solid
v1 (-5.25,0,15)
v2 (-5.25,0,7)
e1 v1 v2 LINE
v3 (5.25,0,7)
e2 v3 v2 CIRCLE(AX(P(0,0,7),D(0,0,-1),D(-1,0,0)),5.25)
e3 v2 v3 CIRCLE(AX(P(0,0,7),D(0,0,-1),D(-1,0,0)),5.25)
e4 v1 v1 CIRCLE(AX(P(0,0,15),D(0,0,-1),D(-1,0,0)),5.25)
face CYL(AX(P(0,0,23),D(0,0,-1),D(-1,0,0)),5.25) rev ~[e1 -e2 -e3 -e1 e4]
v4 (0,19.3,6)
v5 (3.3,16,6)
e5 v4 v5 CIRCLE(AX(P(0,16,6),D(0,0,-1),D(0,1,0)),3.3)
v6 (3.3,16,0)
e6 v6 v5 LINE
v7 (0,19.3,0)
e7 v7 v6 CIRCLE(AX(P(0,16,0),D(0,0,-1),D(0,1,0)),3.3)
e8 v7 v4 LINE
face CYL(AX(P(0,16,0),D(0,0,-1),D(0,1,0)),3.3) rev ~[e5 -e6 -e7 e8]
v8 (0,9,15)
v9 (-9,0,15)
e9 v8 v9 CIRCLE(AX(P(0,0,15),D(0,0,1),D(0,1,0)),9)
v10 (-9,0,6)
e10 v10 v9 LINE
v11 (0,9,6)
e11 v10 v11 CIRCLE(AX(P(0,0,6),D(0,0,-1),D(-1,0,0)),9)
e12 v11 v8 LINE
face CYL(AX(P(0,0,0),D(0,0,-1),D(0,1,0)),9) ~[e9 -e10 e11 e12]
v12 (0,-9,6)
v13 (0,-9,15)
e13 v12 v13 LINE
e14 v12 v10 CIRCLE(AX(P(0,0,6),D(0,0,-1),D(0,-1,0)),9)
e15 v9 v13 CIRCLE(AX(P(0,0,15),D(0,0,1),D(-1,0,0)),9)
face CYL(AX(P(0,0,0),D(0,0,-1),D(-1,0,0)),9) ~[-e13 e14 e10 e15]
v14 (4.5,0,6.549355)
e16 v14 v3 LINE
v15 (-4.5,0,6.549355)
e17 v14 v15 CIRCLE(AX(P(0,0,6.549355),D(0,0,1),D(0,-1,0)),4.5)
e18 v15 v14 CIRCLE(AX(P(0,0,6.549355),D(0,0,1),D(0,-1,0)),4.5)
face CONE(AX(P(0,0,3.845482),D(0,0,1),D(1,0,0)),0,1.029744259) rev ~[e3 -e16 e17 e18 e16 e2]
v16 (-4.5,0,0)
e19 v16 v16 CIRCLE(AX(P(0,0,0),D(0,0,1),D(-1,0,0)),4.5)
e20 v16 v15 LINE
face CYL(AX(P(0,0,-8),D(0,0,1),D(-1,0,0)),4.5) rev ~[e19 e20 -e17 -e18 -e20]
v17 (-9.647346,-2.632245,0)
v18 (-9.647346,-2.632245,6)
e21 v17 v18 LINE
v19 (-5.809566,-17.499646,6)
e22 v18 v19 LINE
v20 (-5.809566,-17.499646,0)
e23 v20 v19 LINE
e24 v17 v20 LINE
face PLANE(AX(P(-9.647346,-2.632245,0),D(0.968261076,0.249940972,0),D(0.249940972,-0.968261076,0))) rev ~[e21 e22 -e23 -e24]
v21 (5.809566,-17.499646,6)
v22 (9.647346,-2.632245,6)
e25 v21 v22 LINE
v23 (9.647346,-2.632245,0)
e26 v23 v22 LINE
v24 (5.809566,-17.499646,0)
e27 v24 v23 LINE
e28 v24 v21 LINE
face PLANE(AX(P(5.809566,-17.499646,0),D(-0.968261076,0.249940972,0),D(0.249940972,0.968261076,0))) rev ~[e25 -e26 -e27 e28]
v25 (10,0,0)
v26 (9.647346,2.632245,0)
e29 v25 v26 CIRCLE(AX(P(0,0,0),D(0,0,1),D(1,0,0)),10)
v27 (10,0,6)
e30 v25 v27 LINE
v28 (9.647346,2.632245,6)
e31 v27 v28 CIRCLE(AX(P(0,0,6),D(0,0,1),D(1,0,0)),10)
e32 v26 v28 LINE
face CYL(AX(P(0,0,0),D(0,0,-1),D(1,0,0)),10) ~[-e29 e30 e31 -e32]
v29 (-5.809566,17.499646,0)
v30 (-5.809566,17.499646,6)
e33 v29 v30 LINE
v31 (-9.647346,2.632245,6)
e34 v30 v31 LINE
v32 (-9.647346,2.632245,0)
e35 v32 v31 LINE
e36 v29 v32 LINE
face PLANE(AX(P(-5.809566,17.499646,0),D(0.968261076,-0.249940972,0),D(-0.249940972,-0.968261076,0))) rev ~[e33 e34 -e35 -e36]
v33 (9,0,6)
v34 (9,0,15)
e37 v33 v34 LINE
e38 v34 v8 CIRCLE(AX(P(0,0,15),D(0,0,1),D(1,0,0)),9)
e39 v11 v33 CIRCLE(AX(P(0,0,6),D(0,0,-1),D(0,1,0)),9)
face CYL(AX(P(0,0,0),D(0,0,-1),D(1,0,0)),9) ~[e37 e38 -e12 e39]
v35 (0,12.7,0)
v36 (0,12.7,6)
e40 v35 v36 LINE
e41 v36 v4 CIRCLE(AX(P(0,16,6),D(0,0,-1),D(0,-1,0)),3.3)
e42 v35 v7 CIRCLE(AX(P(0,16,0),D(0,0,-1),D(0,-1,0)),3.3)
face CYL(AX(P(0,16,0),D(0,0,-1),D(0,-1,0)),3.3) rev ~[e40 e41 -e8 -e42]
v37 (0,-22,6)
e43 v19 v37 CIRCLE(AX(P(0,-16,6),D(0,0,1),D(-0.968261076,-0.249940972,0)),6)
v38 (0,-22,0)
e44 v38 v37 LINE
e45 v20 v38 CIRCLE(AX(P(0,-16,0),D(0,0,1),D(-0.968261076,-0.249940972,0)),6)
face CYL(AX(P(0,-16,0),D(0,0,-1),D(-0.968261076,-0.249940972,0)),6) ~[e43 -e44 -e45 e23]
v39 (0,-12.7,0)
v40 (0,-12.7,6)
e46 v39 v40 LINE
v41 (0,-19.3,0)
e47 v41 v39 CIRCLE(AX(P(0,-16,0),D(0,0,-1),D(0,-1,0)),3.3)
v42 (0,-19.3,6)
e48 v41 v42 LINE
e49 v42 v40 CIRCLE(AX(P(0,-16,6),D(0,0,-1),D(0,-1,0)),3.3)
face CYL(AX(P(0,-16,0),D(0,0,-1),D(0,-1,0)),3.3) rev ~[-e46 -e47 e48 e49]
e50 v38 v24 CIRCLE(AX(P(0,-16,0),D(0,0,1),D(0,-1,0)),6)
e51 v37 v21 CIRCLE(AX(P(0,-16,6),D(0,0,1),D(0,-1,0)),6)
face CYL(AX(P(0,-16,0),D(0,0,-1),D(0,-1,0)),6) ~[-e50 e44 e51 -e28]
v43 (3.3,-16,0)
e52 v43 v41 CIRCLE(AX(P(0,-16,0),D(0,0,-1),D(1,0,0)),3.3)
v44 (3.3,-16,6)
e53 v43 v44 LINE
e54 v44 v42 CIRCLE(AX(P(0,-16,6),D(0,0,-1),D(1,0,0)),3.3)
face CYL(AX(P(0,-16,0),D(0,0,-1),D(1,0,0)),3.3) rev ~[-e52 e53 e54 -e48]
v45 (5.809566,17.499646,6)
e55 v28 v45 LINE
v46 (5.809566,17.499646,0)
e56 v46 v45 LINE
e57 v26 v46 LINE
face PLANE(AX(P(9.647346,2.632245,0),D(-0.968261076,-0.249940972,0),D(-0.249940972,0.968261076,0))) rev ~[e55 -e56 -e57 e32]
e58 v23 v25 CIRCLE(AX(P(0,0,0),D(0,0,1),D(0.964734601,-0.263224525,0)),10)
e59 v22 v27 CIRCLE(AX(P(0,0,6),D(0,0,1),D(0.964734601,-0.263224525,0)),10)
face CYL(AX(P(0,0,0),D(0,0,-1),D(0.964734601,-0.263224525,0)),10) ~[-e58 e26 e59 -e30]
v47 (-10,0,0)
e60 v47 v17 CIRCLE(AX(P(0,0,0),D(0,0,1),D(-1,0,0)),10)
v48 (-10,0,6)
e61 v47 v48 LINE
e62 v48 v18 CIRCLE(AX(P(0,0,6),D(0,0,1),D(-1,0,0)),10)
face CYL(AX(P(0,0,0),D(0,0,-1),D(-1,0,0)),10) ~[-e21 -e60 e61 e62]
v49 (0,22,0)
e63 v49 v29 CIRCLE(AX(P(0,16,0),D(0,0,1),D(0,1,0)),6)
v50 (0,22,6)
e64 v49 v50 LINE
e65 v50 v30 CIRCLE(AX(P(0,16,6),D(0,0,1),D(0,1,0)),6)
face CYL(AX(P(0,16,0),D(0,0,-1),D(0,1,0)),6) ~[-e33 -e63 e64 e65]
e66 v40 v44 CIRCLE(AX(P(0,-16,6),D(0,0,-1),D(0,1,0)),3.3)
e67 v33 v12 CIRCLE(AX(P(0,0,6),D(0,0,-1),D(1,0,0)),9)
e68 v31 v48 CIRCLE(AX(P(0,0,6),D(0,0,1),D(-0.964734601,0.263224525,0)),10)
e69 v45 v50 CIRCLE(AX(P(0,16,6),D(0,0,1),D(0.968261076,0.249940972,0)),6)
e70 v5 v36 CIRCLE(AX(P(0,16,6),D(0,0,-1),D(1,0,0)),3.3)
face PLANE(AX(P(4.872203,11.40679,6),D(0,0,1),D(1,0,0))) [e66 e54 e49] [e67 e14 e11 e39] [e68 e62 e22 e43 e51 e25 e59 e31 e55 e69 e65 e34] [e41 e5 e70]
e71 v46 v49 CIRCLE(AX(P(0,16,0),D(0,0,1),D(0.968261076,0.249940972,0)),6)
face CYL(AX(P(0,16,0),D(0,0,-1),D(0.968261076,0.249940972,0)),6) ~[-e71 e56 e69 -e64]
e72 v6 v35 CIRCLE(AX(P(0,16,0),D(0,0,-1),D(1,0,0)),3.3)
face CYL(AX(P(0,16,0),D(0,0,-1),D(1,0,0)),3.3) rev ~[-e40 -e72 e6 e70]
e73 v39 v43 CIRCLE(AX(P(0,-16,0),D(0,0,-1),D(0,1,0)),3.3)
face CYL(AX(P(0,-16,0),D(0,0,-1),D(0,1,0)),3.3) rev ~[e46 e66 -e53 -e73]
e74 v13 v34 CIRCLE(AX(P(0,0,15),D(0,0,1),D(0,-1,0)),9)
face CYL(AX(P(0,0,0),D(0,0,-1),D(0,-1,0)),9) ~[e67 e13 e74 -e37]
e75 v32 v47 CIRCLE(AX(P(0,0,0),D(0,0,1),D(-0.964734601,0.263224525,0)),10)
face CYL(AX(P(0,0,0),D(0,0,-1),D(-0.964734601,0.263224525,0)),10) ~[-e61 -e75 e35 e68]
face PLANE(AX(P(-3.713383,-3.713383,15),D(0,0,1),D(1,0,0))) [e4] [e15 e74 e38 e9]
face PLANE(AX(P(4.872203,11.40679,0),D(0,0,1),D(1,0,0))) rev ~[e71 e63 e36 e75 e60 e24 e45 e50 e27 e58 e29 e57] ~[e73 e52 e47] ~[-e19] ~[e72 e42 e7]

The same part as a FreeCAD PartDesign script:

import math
import FreeCAD as App
import Part
import Sketcher
from FreeCAD import Vector

doc = App.newDocument("Part")
params = doc.addObject("Spreadsheet::Sheet", "Params")
for row, (alias, value) in enumerate([
    ("sketch1_radius", "10 mm"),
    ("sketch1_radius2", "6 mm"),
    ("sketch1_radius3", "9 mm"),
    ("sketch1_radius4", "3.3 mm"),
    ("pad1_length", "6 mm"),
    ("sketch2_radius", "9 mm"),
    ("pad2_length", "15 mm"),
    ("sketch3_diameter", "10.5 mm"),
    ("hole_diameter", "10.5 mm"),
    ("hole_depth", "8 mm"),
    ("sketch4_diameter", "9 mm"),
    ("hole2_diameter", "9 mm"),
    ("hole2_depth", "8 mm"),
], start=1):
    params.set(f"A{row}", alias)
    params.set(f"B{row}", "=" + value)
    params.setAlias(f"B{row}", alias)

body = doc.addObject("PartDesign::Body", "Body")

sketch1 = body.newObject("Sketcher::SketchObject", "Sketch")
sketch1.AttachmentSupport = (doc.getObject("XY_Plane"), [""])
sketch1.MapMode = "FlatFace"
sketch1.addGeometry(Part.ArcOfCircle(Part.Circle(Vector(0, 0, 0), Vector(0, 0, 1), 10), math.radians(0), math.radians(15.26)), False)
sketch1.addGeometry(Part.LineSegment(Vector(9.6, 2.6, 0), Vector(5.8, 17.5, 0)), False)
sketch1.addGeometry(Part.ArcOfCircle(Part.Circle(Vector(0, 16, 0), Vector(0, 0, 1), 6), math.radians(14), math.radians(90)), False)
sketch1.addGeometry(Part.ArcOfCircle(Part.Circle(Vector(0, 16, 0), Vector(0, 0, 1), 6), math.radians(90), math.radians(166)), False)
sketch1.addGeometry(Part.LineSegment(Vector(-5.8, 17.5, 0), Vector(-9.6, 2.6, 0)), False)
sketch1.addGeometry(Part.ArcOfCircle(Part.Circle(Vector(0, 0, 0), Vector(0, 0, 1), 10), math.radians(164.74), math.radians(180)), False)
sketch1.addGeometry(Part.ArcOfCircle(Part.Circle(Vector(0, 0, 0), Vector(0, 0, 1), 10), math.radians(180), math.radians(195.26)), False)
sketch1.addGeometry(Part.LineSegment(Vector(-9.6, -2.6, 0), Vector(-5.8, -17.5, 0)), False)
sketch1.addGeometry(Part.ArcOfCircle(Part.Circle(Vector(0, -16, 0), Vector(0, 0, 1), 6), math.radians(-166), math.radians(-90)), False)
sketch1.addGeometry(Part.ArcOfCircle(Part.Circle(Vector(0, -16, 0), Vector(0, 0, 1), 6), math.radians(-90), math.radians(-14)), False)
sketch1.addGeometry(Part.LineSegment(Vector(5.8, -17.5, 0), Vector(9.6, -2.6, 0)), False)
sketch1.addGeometry(Part.ArcOfCircle(Part.Circle(Vector(0, 0, 0), Vector(0, 0, 1), 10), math.radians(-15.26), math.radians(0)), False)
sketch1.addGeometry(Part.ArcOfCircle(Part.Circle(Vector(0, 0, 0), Vector(0, 0, 1), 9), math.radians(0), math.radians(90)), False)
sketch1.addGeometry(Part.ArcOfCircle(Part.Circle(Vector(0, 0, 0), Vector(0, 0, 1), 9), math.radians(-90), math.radians(0)), False)
sketch1.addGeometry(Part.ArcOfCircle(Part.Circle(Vector(0, 0, 0), Vector(0, 0, 1), 9), math.radians(180), math.radians(270)), False)
sketch1.addGeometry(Part.ArcOfCircle(Part.Circle(Vector(0, 0, 0), Vector(0, 0, 1), 9), math.radians(90), math.radians(180)), False)
sketch1.addGeometry(Part.ArcOfCircle(Part.Circle(Vector(0, -16, 0), Vector(0, 0, 1), 3.3), math.radians(90), math.radians(270)), False)
sketch1.addGeometry(Part.ArcOfCircle(Part.Circle(Vector(0, -16, 0), Vector(0, 0, 1), 3.3), math.radians(0), math.radians(90)), False)
sketch1.addGeometry(Part.ArcOfCircle(Part.Circle(Vector(0, -16, 0), Vector(0, 0, 1), 3.3), math.radians(-90), math.radians(0)), False)
sketch1.addGeometry(Part.ArcOfCircle(Part.Circle(Vector(0, 16, 0), Vector(0, 0, 1), 3.3), math.radians(0), math.radians(90)), False)
sketch1.addGeometry(Part.ArcOfCircle(Part.Circle(Vector(0, 16, 0), Vector(0, 0, 1), 3.3), math.radians(-90), math.radians(0)), False)
sketch1.addGeometry(Part.ArcOfCircle(Part.Circle(Vector(0, 16, 0), Vector(0, 0, 1), 3.3), math.radians(90), math.radians(270)), False)
sketch1.addConstraint(Sketcher.Constraint("Coincident", 0, 2, 1, 1))
sketch1.addConstraint(Sketcher.Constraint("Tangent", 1, 2, 2, 1))
sketch1.addConstraint(Sketcher.Constraint("Tangent", 2, 2, 3, 1))
sketch1.addConstraint(Sketcher.Constraint("Tangent", 3, 2, 4, 1))
sketch1.addConstraint(Sketcher.Constraint("Coincident", 4, 2, 5, 1))
sketch1.addConstraint(Sketcher.Constraint("Tangent", 5, 2, 6, 1))
sketch1.addConstraint(Sketcher.Constraint("Coincident", 6, 2, 7, 1))
sketch1.addConstraint(Sketcher.Constraint("Tangent", 7, 2, 8, 1))
sketch1.addConstraint(Sketcher.Constraint("Tangent", 8, 2, 9, 1))
sketch1.addConstraint(Sketcher.Constraint("Tangent", 9, 2, 10, 1))
sketch1.addConstraint(Sketcher.Constraint("Coincident", 10, 2, 11, 1))
sketch1.addConstraint(Sketcher.Constraint("Tangent", 11, 2, 0, 1))
sketch1.addConstraint(Sketcher.Constraint("Tangent", 12, 1, 13, 2))
sketch1.addConstraint(Sketcher.Constraint("Tangent", 13, 1, 14, 2))
sketch1.addConstraint(Sketcher.Constraint("Tangent", 14, 1, 15, 2))
sketch1.addConstraint(Sketcher.Constraint("Tangent", 15, 1, 12, 2))
sketch1.addConstraint(Sketcher.Constraint("Tangent", 16, 1, 17, 2))
sketch1.addConstraint(Sketcher.Constraint("Tangent", 17, 1, 18, 2))
sketch1.addConstraint(Sketcher.Constraint("Tangent", 18, 1, 16, 2))
sketch1.addConstraint(Sketcher.Constraint("Tangent", 19, 1, 20, 2))
sketch1.addConstraint(Sketcher.Constraint("Tangent", 20, 1, 21, 2))
sketch1.addConstraint(Sketcher.Constraint("Tangent", 21, 1, 19, 2))
sketch1.addConstraint(Sketcher.Constraint("Coincident", 0, 3, -1, 1))
sketch1.addConstraint(Sketcher.Constraint("Coincident", 5, 3, -1, 1))
sketch1.addConstraint(Sketcher.Constraint("Coincident", 12, 3, -1, 1))
sketch1.addConstraint(Sketcher.Constraint("Coincident", 16, 3, 8, 3))
sketch1.addConstraint(Sketcher.Constraint("Coincident", 19, 3, 2, 3))
sketch1.addConstraint(Sketcher.Constraint("Equal", 2, 3))
sketch1.addConstraint(Sketcher.Constraint("Equal", 0, 5))
sketch1.addConstraint(Sketcher.Constraint("Equal", 5, 6))
sketch1.addConstraint(Sketcher.Constraint("Equal", 3, 8))
sketch1.addConstraint(Sketcher.Constraint("Equal", 8, 9))
sketch1.addConstraint(Sketcher.Constraint("Equal", 6, 11))
sketch1.addConstraint(Sketcher.Constraint("Equal", 12, 13))
sketch1.addConstraint(Sketcher.Constraint("Equal", 18, 19))
sketch1.addConstraint(Sketcher.Constraint("Symmetric", 2, 3, 8, 3, -1, 1))
sketch1.addConstraint(Sketcher.Constraint("Symmetric", 17, 1, 19, 1, -1))
sketch1.addConstraint(Sketcher.Constraint("PointOnObject", 2, 2, -2))
sketch1.addConstraint(Sketcher.Constraint("PointOnObject", 5, 2, -1))
sketch1.addConstraint(Sketcher.Constraint("PointOnObject", 8, 2, -2))
sketch1.addConstraint(Sketcher.Constraint("PointOnObject", 11, 2, -1))
sketch1.addConstraint(Sketcher.Constraint("PointOnObject", 12, 1, -1))
sketch1.addConstraint(Sketcher.Constraint("PointOnObject", 13, 1, -2))
sketch1.addConstraint(Sketcher.Constraint("PointOnObject", 14, 1, -1))
sketch1.addConstraint(Sketcher.Constraint("PointOnObject", 15, 1, -2))
sketch1.addConstraint(Sketcher.Constraint("PointOnObject", 16, 1, -2))
sketch1.addConstraint(Sketcher.Constraint("PointOnObject", 18, 1, -2))
sketch1.addConstraint(Sketcher.Constraint("PointOnObject", 20, 1, -2))
sketch1.addConstraint(Sketcher.Constraint("PointOnObject", 21, 1, -2))
sketch1.addConstraint(Sketcher.Constraint("Parallel", 1, 7))
sketch1.addConstraint(Sketcher.Constraint("Parallel", 4, 10))
sketch1.addConstraint(Sketcher.Constraint("Horizontal", 0, 2, 4, 2))
sketch1.addConstraint(Sketcher.Constraint("Horizontal", 18, 3, 17, 1))
sketch1.addConstraint(Sketcher.Constraint("Radius", 0, 10.0))
sketch1.addConstraint(Sketcher.Constraint("Radius", 2, 6.0))
sketch1.addConstraint(Sketcher.Constraint("Radius", 12, 9.0))
sketch1.addConstraint(Sketcher.Constraint("Radius", 16, 3.3))
sketch1.addConstraint(Sketcher.Constraint("DistanceY", -1, 1, 2, 3, 16.0))
sketch1.addConstraint(Sketcher.Constraint("DistanceY", 6, 2, 4, 2, 5.26449))
sketch1.setExpression("Constraints[53]", "Params.sketch1_radius")
sketch1.setExpression("Constraints[54]", "Params.sketch1_radius2")
sketch1.setExpression("Constraints[55]", "Params.sketch1_radius3")
sketch1.setExpression("Constraints[56]", "Params.sketch1_radius4")
pad1 = body.newObject("PartDesign::Pad", "Pad")
pad1.Profile = sketch1
pad1.setExpression("Length", "Params.pad1_length")

sketch2 = body.newObject("Sketcher::SketchObject", "Sketch001")
sketch2.AttachmentSupport = (doc.getObject("XY_Plane"), [""])
sketch2.MapMode = "FlatFace"
sketch2.addGeometry(Part.ArcOfCircle(Part.Circle(Vector(0, 0, 0), Vector(0, 0, 1), 9), math.radians(180), math.radians(270)), False)
sketch2.addGeometry(Part.ArcOfCircle(Part.Circle(Vector(0, 0, 0), Vector(0, 0, 1), 9), math.radians(-90), math.radians(0)), False)
sketch2.addGeometry(Part.ArcOfCircle(Part.Circle(Vector(0, 0, 0), Vector(0, 0, 1), 9), math.radians(0), math.radians(90)), False)
sketch2.addGeometry(Part.ArcOfCircle(Part.Circle(Vector(0, 0, 0), Vector(0, 0, 1), 9), math.radians(90), math.radians(180)), False)
sketch2.addConstraint(Sketcher.Constraint("Tangent", 0, 2, 1, 1))
sketch2.addConstraint(Sketcher.Constraint("Tangent", 1, 2, 2, 1))
sketch2.addConstraint(Sketcher.Constraint("Tangent", 2, 2, 3, 1))
sketch2.addConstraint(Sketcher.Constraint("Tangent", 3, 2, 0, 1))
sketch2.addConstraint(Sketcher.Constraint("Coincident", 0, 3, -1, 1))
sketch2.addConstraint(Sketcher.Constraint("Equal", 0, 1))
sketch2.addConstraint(Sketcher.Constraint("PointOnObject", 0, 2, -2))
sketch2.addConstraint(Sketcher.Constraint("PointOnObject", 1, 2, -1))
sketch2.addConstraint(Sketcher.Constraint("PointOnObject", 2, 2, -2))
sketch2.addConstraint(Sketcher.Constraint("PointOnObject", 3, 2, -1))
sketch2.addConstraint(Sketcher.Constraint("Radius", 0, 9.0))
sketch2.setExpression("Constraints[10]", "Params.sketch2_radius")
pad2 = body.newObject("PartDesign::Pad", "Pad001")
pad2.Profile = sketch2
pad2.setExpression("Length", "Params.pad2_length")

sketch3 = body.newObject("Sketcher::SketchObject", "Sketch002")
sketch3.AttachmentSupport = (doc.getObject("XY_Plane"), [""])
sketch3.MapMode = "FlatFace"
sketch3.AttachmentOffset = App.Placement(Vector(0, 0, 15), App.Rotation())
sketch3.addGeometry(Part.Circle(Vector(0, 0, 0), Vector(0, 0, 1), 5), False)
sketch3.addConstraint(Sketcher.Constraint("Coincident", 0, 3, -1, 1))
sketch3.addConstraint(Sketcher.Constraint("Diameter", 0, 10.5))
sketch3.setExpression("Constraints[1]", "Params.sketch3_diameter")
doc.recompute()
hole = body.newObject("PartDesign::Hole", "Hole")
hole.Profile = sketch3
hole.ThreadType = "None"
hole.setExpression("Diameter", "Params.hole_diameter")
hole.DepthType = "Dimension"
hole.setExpression("Depth", "Params.hole_depth")
hole.DrillPoint = "Angled"
hole.DrillPointAngle = 118

sketch4 = body.newObject("Sketcher::SketchObject", "Sketch003")
sketch4.AttachmentSupport = (doc.getObject("XY_Plane"), [""])
sketch4.MapMode = "FlatFace"
sketch4.addGeometry(Part.Circle(Vector(0, 0, 0), Vector(0, 0, 1), 4.5), False)
sketch4.addConstraint(Sketcher.Constraint("Coincident", 0, 3, -1, 1))
sketch4.addConstraint(Sketcher.Constraint("Diameter", 0, 9.0))
sketch4.setExpression("Constraints[1]", "Params.sketch4_diameter")
doc.recompute()
hole2 = body.newObject("PartDesign::Hole", "Hole001")
hole2.Profile = sketch4
hole2.ThreadType = "None"
hole2.setExpression("Diameter", "Params.hole2_diameter")
hole2.DepthType = "Dimension"
hole2.setExpression("Depth", "Params.hole2_depth")
hole2.DrillPoint = "Angled"
hole2.DrillPointAngle = 118
hole2.Reversed = True

doc.recompute()
